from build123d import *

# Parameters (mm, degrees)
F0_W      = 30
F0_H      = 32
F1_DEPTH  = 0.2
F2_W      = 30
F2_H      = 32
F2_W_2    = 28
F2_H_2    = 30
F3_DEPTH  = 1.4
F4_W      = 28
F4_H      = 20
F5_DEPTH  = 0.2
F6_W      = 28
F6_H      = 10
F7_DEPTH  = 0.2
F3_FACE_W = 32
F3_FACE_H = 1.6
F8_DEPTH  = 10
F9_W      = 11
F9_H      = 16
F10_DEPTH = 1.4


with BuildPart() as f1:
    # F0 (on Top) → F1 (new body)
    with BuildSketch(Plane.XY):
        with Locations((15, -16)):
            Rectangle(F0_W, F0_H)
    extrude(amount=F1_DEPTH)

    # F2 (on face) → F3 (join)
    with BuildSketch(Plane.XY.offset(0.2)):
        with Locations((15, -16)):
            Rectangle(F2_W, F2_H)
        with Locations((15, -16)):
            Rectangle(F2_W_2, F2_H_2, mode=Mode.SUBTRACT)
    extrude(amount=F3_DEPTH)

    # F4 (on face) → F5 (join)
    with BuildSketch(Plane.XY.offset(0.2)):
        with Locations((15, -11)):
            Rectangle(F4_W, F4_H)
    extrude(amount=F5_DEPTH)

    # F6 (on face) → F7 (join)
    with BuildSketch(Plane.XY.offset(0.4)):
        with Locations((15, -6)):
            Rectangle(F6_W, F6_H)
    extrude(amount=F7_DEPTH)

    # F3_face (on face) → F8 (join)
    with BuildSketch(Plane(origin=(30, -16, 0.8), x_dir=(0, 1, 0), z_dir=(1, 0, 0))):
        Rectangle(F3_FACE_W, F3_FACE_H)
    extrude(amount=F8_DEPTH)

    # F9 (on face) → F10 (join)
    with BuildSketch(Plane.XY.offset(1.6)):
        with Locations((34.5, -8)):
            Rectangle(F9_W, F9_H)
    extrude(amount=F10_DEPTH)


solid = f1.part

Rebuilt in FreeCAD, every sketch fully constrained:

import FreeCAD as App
import Part
import Sketcher
Q = App.Units.Quantity


def add_polygon(sketch, points):
    """Adds a closed chain of lines whose ends are joined by coincident constraints."""
    first, n = sketch.GeometryCount, len(points)
    for a, b in zip(points, points[1:] + points[:1]):
        sketch.addGeometry(Part.LineSegment(App.Vector(*a, 0), App.Vector(*b, 0)), False)
    for i in range(n):
        sketch.addConstraint(Sketcher.Constraint("Coincident", first + i, 2, first + (i + 1) % n, 1))

doc = App.newDocument("Part")
body = doc.addObject("PartDesign::Body", "Body")

sketch1 = body.newObject("Sketcher::SketchObject", "Sketch")
sketch1.AttachmentSupport = (doc.getObject("XY_Plane"), [""])
sketch1.MapMode = "FlatFace"
add_polygon(sketch1, [(0, 0), (0, -32), (30, -32), (30, 0)])
sketch1.addConstraint([
    Sketcher.Constraint("Vertical", 0),
    Sketcher.Constraint("Horizontal", 1),
    Sketcher.Constraint("Vertical", 2),
    Sketcher.Constraint("Horizontal", 3),
    Sketcher.Constraint("Coincident", 3, 2, -1, 1),
    Sketcher.Constraint("DistanceX", 1, 1, 1, 2, Q("30 mm")),
    Sketcher.Constraint("DistanceY", 0, 2, 0, 1, Q("32 mm")),
])
pad1 = body.newObject("PartDesign::Pad", "Pad")
pad1.Profile = sketch1
pad1.Length = 0.2

sketch2 = body.newObject("Sketcher::SketchObject", "Sketch001")
sketch2.AttachmentSupport = (doc.getObject("XY_Plane"), [""])
sketch2.MapMode = "FlatFace"
sketch2.AttachmentOffset = App.Placement(App.Vector(0, 0, 0.2), App.Rotation())
add_polygon(sketch2, [(0, 0), (0, -32), (30, -32), (30, 0)])
add_polygon(sketch2, [(29, -31), (1, -31), (1, -1), (29, -1)])
sketch2.addConstraint([
    Sketcher.Constraint("Vertical", 0),
    Sketcher.Constraint("Horizontal", 1),
    Sketcher.Constraint("Vertical", 2),
    Sketcher.Constraint("Horizontal", 3),
    Sketcher.Constraint("Horizontal", 4),
    Sketcher.Constraint("Vertical", 5),
    Sketcher.Constraint("Horizontal", 6),
    Sketcher.Constraint("Vertical", 7),
    Sketcher.Constraint("Coincident", 3, 2, -1, 1),
    Sketcher.Constraint("Equal", 3, 5),
    Sketcher.Constraint("DistanceX", 1, 1, 1, 2, Q("30 mm")),
    Sketcher.Constraint("DistanceX", 4, 2, 4, 1, Q("28 mm")),
    Sketcher.Constraint("DistanceY", 0, 2, 0, 1, Q("32 mm")),
    Sketcher.Constraint("DistanceX", -1, 1, 4, 2, Q("1 mm")),
    Sketcher.Constraint("DistanceY", 4, 2, -1, 1, Q("31 mm")),
])
pad2 = body.newObject("PartDesign::Pad", "Pad001")
pad2.Profile = sketch2
pad2.Length = 1.4

sketch3 = body.newObject("Sketcher::SketchObject", "Sketch002")
sketch3.AttachmentSupport = (doc.getObject("XY_Plane"), [""])
sketch3.MapMode = "FlatFace"
sketch3.AttachmentOffset = App.Placement(App.Vector(0, 0, 0.2), App.Rotation())
add_polygon(sketch3, [(1, -1), (1, -21), (29, -21), (29, -1)])
sketch3.addConstraint([
    Sketcher.Constraint("Vertical", 0),
    Sketcher.Constraint("Horizontal", 1),
    Sketcher.Constraint("Vertical", 2),
    Sketcher.Constraint("Horizontal", 3),
    Sketcher.Constraint("DistanceX", 1, 1, 1, 2, Q("28 mm")),
    Sketcher.Constraint("DistanceY", 0, 2, 0, 1, Q("20 mm")),
    Sketcher.Constraint("DistanceX", -1, 1, 0, 2, Q("1 mm")),
    Sketcher.Constraint("DistanceY", 0, 2, -1, 1, Q("21 mm")),
])
pad3 = body.newObject("PartDesign::Pad", "Pad002")
pad3.Profile = sketch3
pad3.Length = 0.2

sketch4 = body.newObject("Sketcher::SketchObject", "Sketch003")
sketch4.AttachmentSupport = (doc.getObject("XY_Plane"), [""])
sketch4.MapMode = "FlatFace"
sketch4.AttachmentOffset = App.Placement(App.Vector(0, 0, 0.4), App.Rotation())
add_polygon(sketch4, [(1, -1), (1, -11), (29, -11), (29, -1)])
sketch4.addConstraint([
    Sketcher.Constraint("Vertical", 0),
    Sketcher.Constraint("Horizontal", 1),
    Sketcher.Constraint("Vertical", 2),
    Sketcher.Constraint("Horizontal", 3),
    Sketcher.Constraint("DistanceX", 1, 1, 1, 2, Q("28 mm")),
    Sketcher.Constraint("DistanceY", 0, 2, 0, 1, Q("10 mm")),
    Sketcher.Constraint("DistanceX", -1, 1, 0, 2, Q("1 mm")),
    Sketcher.Constraint("DistanceY", 0, 2, -1, 1, Q("11 mm")),
])
pad4 = body.newObject("PartDesign::Pad", "Pad003")
pad4.Profile = sketch4
pad4.Length = 0.2

sketch5 = body.newObject("Sketcher::SketchObject", "Sketch004")
sketch5.AttachmentSupport = (doc.getObject("YZ_Plane"), [""])
sketch5.MapMode = "FlatFace"
sketch5.AttachmentOffset = App.Placement(App.Vector(0, 0, 30), App.Rotation())
add_polygon(sketch5, [(-32, 1.6), (-32, 0), (0, 0), (0, 1.6)])
sketch5.addConstraint([
    Sketcher.Constraint("Vertical", 0),
    Sketcher.Constraint("Horizontal", 1),
    Sketcher.Constraint("Vertical", 2),
    Sketcher.Constraint("Horizontal", 3),
    Sketcher.Constraint("Coincident", 1, 2, -1, 1),
    Sketcher.Constraint("DistanceX", 1, 1, 1, 2, Q("32 mm")),
    Sketcher.Constraint("DistanceY", 0, 2, 0, 1, Q("1.6 mm")),
])
pad5 = body.newObject("PartDesign::Pad", "Pad004")
pad5.Profile = sketch5
pad5.Length = 10

sketch6 = body.newObject("Sketcher::SketchObject", "Sketch005")
sketch6.AttachmentSupport = (doc.getObject("XY_Plane"), [""])
sketch6.MapMode = "FlatFace"
sketch6.AttachmentOffset = App.Placement(App.Vector(0, 0, 1.6), App.Rotation())
add_polygon(sketch6, [(29, 0), (29, -16), (40, -16), (40, 0)])
sketch6.addConstraint([
    Sketcher.Constraint("Vertical", 0),
    Sketcher.Constraint("Horizontal", 1),
    Sketcher.Constraint("Vertical", 2),
    Sketcher.Constraint("Horizontal", 3),
    Sketcher.Constraint("PointOnObject", 2, 2, -1),
    Sketcher.Constraint("DistanceX", 1, 1, 1, 2, Q("11 mm")),
    Sketcher.Constraint("DistanceY", 0, 2, 0, 1, Q("16 mm")),
    Sketcher.Constraint("DistanceX", -1, 1, 0, 2, Q("29 mm")),
])
pad6 = body.newObject("PartDesign::Pad", "Pad005")
pad6.Profile = sketch6
pad6.Length = 1.4

doc.recompute()
